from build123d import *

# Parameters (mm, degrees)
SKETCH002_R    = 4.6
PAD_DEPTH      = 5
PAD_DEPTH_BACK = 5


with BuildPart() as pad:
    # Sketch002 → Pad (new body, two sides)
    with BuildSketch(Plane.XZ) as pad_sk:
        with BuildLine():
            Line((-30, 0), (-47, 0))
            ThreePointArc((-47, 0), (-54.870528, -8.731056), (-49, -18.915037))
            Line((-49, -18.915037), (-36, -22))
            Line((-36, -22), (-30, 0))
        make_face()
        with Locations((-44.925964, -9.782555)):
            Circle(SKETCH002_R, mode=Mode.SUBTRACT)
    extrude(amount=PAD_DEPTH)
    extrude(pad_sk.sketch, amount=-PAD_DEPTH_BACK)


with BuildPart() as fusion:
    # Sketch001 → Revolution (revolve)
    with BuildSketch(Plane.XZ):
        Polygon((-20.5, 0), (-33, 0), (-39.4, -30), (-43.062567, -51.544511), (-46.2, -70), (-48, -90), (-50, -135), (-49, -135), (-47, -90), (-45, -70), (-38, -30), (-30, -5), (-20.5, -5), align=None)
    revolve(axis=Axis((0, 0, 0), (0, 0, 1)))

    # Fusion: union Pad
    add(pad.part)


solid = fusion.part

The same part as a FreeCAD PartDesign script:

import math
import FreeCAD as App
import Part
import Sketcher

V = App.Vector
Q = App.Units.Quantity

doc = App.newDocument("Part")
body = doc.addObject("PartDesign::Body", "Body")

# Sketch on XZ plane
sketch1 = body.newObject("Sketcher::SketchObject", "Sketch")
sketch1.AttachmentSupport = (doc.getObject("XZ_Plane"), [""])
sketch1.MapMode = "FlatFace"
sketch1.addGeometry(Part.LineSegment(V(-30, 0, 0), V(-47, 0, 0)), False)
sketch1.addGeometry(Part.ArcOfCircle(Part.Circle(V(-44.9, -9.8, 0), V(0, 0, 1), 10), math.radians(102), math.radians(246)), False)
sketch1.addGeometry(Part.LineSegment(V(-49, -18.9, 0), V(-36, -22, 0)), False)
sketch1.addGeometry(Part.LineSegment(V(-36, -22, 0), V(-30, 0, 0)), False)
sketch1.addGeometry(Part.Circle(V(-44.9, -9.8, 0), V(0, 0, 1), 4.6), False)
sketch1.addConstraint(Sketcher.Constraint("Coincident", 0, 2, 1, 1))
sketch1.addConstraint(Sketcher.Constraint("Coincident", 1, 2, 2, 1))
sketch1.addConstraint(Sketcher.Constraint("Coincident", 2, 2, 3, 1))
sketch1.addConstraint(Sketcher.Constraint("Coincident", 3, 2, 0, 1))
sketch1.addConstraint(Sketcher.Constraint("Horizontal", 0))
sketch1.addConstraint(Sketcher.Constraint("Coincident", 4, 3, 1, 3))
sketch1.addConstraint(Sketcher.Constraint("PointOnObject", 0, 2, -1))
sketch1.addConstraint(Sketcher.Constraint("Radius", 1, Q("10 mm")))
sketch1.addConstraint(Sketcher.Constraint("Diameter", 4, Q("9.2 mm")))
sketch1.addConstraint(Sketcher.Constraint("DistanceX", 0, 2, 0, 1, Q("17 mm")))
sketch1.addConstraint(Sketcher.Constraint("DistanceX", 0, 2, -1, 1, Q("47 mm")))
sketch1.addConstraint(Sketcher.Constraint("DistanceX", 1, 2, -1, 1, Q("49 mm")))
sketch1.addConstraint(Sketcher.Constraint("DistanceX", 2, 2, -1, 1, Q("36 mm")))
sketch1.addConstraint(Sketcher.Constraint("DistanceY", 2, 2, -1, 1, Q("22 mm")))
sketch1.addConstraint(Sketcher.Constraint("DistanceY", 1, 2, 4, 3, Q("9.132482 mm")))
pad1 = body.newObject("PartDesign::Pad", "Pad")
pad1.Profile = sketch1
pad1.Type = "TwoLengths"
pad1.Length = 5
pad1.Length2 = 5
body2 = doc.addObject("PartDesign::Body", "Body001")

# Sketch on XZ plane
sketch2 = body2.newObject("Sketcher::SketchObject", "Sketch001")
sketch2.AttachmentSupport = (doc.getObject("XZ_Plane001"), [""])
sketch2.MapMode = "FlatFace"
sketch2.addGeometry(Part.LineSegment(V(-20.5, 0, 0), V(-33, 0, 0)), False)
sketch2.addGeometry(Part.LineSegment(V(-33, 0, 0), V(-39.4, -30, 0)), False)
sketch2.addGeometry(Part.LineSegment(V(-39.4, -30, 0), V(-43.1, -51.5, 0)), False)
sketch2.addGeometry(Part.LineSegment(V(-43.1, -51.5, 0), V(-46.2, -70, 0)), False)
sketch2.addGeometry(Part.LineSegment(V(-46.2, -70, 0), V(-48, -90, 0)), False)
sketch2.addGeometry(Part.LineSegment(V(-48, -90, 0), V(-50, -135, 0)), False)
sketch2.addGeometry(Part.LineSegment(V(-50, -135, 0), V(-49, -135, 0)), False)
sketch2.addGeometry(Part.LineSegment(V(-49, -135, 0), V(-47, -90, 0)), False)
sketch2.addGeometry(Part.LineSegment(V(-47, -90, 0), V(-45, -70, 0)), False)
sketch2.addGeometry(Part.LineSegment(V(-45, -70, 0), V(-38, -30, 0)), False)
sketch2.addGeometry(Part.LineSegment(V(-38, -30, 0), V(-30, -5, 0)), False)
sketch2.addGeometry(Part.LineSegment(V(-30, -5, 0), V(-20.5, -5, 0)), False)
sketch2.addGeometry(Part.LineSegment(V(-20.5, -5, 0), V(-20.5, 0, 0)), False)
sketch2.addConstraint(Sketcher.Constraint("Coincident", 0, 2, 1, 1))
sketch2.addConstraint(Sketcher.Constraint("Coincident", 1, 2, 2, 1))
sketch2.addConstraint(Sketcher.Constraint("Coincident", 2, 2, 3, 1))
sketch2.addConstraint(Sketcher.Constraint("Coincident", 3, 2, 4, 1))
sketch2.addConstraint(Sketcher.Constraint("Coincident", 4, 2, 5, 1))
sketch2.addConstraint(Sketcher.Constraint("Coincident", 5, 2, 6, 1))
sketch2.addConstraint(Sketcher.Constraint("Coincident", 6, 2, 7, 1))
sketch2.addConstraint(Sketcher.Constraint("Coincident", 7, 2, 8, 1))
sketch2.addConstraint(Sketcher.Constraint("Coincident", 8, 2, 9, 1))
sketch2.addConstraint(Sketcher.Constraint("Coincident", 9, 2, 10, 1))
sketch2.addConstraint(Sketcher.Constraint("Coincident", 10, 2, 11, 1))
sketch2.addConstraint(Sketcher.Constraint("Coincident", 11, 2, 12, 1))
sketch2.addConstraint(Sketcher.Constraint("Coincident", 12, 2, 0, 1))
sketch2.addConstraint(Sketcher.Constraint("Horizontal", 0))
sketch2.addConstraint(Sketcher.Constraint("Horizontal", 6))
sketch2.addConstraint(Sketcher.Constraint("Horizontal", 11))
sketch2.addConstraint(Sketcher.Constraint("Vertical", 12))
sketch2.addConstraint(Sketcher.Constraint("PointOnObject", 0, 2, -1))
sketch2.addConstraint(Sketcher.Constraint("Parallel", 2, 3))
sketch2.addConstraint(Sketcher.Constraint("Parallel", 5, 7))
sketch2.addConstraint(Sketcher.Constraint("Horizontal", 4, 2, 7, 2))
sketch2.addConstraint(Sketcher.Constraint("Horizontal", 3, 2, 8, 2))
sketch2.addConstraint(Sketcher.Constraint("Horizontal", 1, 2, 9, 2))
sketch2.addConstraint(Sketcher.Constraint("DistanceX", 6, 1, 6, 2, Q("1 mm")))
sketch2.addConstraint(Sketcher.Constraint("DistanceY", 12, 1, 12, 2, Q("5 mm")))
sketch2.addConstraint(Sketcher.Constraint("DistanceX", 0, 2, 0, 1, Q("12.5 mm")))
sketch2.addConstraint(Sketcher.Constraint("DistanceX", 11, 1, 11, 2, Q("9.5 mm")))
sketch2.addConstraint(Sketcher.Constraint("DistanceX", 0, 2, -1, 1, Q("33 mm")))
sketch2.addConstraint(Sketcher.Constraint("DistanceY", 1, 2, -1, 1, Q("30 mm")))
sketch2.addConstraint(Sketcher.Constraint("DistanceY", 3, 2, -1, 1, Q("70 mm")))
sketch2.addConstraint(Sketcher.Constraint("DistanceX", 4, 2, -1, 1, Q("48 mm")))
sketch2.addConstraint(Sketcher.Constraint("DistanceY", 4, 2, -1, 1, Q("90 mm")))
sketch2.addConstraint(Sketcher.Constraint("DistanceX", 5, 2, -1, 1, Q("50 mm")))
sketch2.addConstraint(Sketcher.Constraint("DistanceY", 5, 2, -1, 1, Q("135 mm")))
sketch2.addConstraint(Sketcher.Constraint("DistanceX", 8, 2, -1, 1, Q("45 mm")))
sketch2.addConstraint(Sketcher.Constraint("DistanceX", 9, 2, -1, 1, Q("38 mm")))
sketch2.addConstraint(Sketcher.Constraint("DistanceX", 1, 2, -1, 1, Q("39.4 mm")))
sketch2.addConstraint(Sketcher.Constraint("DistanceX", 3, 2, -1, 1, Q("46.2 mm")))
sketch2.addConstraint(Sketcher.Constraint("Distance", 2, Q("21.853612 mm")))
revolution = body2.newObject("PartDesign::Revolution", "Revolution")
revolution.Profile = sketch2
revolution.ReferenceAxis = (sketch2, ["V_Axis"])
revolution.Angle = 360
doc.recompute()

boolean = body2.newObject("PartDesign::Boolean", "Boolean")
boolean.Type = "Fuse"
boolean.addObjects([body])

doc.recompute()
